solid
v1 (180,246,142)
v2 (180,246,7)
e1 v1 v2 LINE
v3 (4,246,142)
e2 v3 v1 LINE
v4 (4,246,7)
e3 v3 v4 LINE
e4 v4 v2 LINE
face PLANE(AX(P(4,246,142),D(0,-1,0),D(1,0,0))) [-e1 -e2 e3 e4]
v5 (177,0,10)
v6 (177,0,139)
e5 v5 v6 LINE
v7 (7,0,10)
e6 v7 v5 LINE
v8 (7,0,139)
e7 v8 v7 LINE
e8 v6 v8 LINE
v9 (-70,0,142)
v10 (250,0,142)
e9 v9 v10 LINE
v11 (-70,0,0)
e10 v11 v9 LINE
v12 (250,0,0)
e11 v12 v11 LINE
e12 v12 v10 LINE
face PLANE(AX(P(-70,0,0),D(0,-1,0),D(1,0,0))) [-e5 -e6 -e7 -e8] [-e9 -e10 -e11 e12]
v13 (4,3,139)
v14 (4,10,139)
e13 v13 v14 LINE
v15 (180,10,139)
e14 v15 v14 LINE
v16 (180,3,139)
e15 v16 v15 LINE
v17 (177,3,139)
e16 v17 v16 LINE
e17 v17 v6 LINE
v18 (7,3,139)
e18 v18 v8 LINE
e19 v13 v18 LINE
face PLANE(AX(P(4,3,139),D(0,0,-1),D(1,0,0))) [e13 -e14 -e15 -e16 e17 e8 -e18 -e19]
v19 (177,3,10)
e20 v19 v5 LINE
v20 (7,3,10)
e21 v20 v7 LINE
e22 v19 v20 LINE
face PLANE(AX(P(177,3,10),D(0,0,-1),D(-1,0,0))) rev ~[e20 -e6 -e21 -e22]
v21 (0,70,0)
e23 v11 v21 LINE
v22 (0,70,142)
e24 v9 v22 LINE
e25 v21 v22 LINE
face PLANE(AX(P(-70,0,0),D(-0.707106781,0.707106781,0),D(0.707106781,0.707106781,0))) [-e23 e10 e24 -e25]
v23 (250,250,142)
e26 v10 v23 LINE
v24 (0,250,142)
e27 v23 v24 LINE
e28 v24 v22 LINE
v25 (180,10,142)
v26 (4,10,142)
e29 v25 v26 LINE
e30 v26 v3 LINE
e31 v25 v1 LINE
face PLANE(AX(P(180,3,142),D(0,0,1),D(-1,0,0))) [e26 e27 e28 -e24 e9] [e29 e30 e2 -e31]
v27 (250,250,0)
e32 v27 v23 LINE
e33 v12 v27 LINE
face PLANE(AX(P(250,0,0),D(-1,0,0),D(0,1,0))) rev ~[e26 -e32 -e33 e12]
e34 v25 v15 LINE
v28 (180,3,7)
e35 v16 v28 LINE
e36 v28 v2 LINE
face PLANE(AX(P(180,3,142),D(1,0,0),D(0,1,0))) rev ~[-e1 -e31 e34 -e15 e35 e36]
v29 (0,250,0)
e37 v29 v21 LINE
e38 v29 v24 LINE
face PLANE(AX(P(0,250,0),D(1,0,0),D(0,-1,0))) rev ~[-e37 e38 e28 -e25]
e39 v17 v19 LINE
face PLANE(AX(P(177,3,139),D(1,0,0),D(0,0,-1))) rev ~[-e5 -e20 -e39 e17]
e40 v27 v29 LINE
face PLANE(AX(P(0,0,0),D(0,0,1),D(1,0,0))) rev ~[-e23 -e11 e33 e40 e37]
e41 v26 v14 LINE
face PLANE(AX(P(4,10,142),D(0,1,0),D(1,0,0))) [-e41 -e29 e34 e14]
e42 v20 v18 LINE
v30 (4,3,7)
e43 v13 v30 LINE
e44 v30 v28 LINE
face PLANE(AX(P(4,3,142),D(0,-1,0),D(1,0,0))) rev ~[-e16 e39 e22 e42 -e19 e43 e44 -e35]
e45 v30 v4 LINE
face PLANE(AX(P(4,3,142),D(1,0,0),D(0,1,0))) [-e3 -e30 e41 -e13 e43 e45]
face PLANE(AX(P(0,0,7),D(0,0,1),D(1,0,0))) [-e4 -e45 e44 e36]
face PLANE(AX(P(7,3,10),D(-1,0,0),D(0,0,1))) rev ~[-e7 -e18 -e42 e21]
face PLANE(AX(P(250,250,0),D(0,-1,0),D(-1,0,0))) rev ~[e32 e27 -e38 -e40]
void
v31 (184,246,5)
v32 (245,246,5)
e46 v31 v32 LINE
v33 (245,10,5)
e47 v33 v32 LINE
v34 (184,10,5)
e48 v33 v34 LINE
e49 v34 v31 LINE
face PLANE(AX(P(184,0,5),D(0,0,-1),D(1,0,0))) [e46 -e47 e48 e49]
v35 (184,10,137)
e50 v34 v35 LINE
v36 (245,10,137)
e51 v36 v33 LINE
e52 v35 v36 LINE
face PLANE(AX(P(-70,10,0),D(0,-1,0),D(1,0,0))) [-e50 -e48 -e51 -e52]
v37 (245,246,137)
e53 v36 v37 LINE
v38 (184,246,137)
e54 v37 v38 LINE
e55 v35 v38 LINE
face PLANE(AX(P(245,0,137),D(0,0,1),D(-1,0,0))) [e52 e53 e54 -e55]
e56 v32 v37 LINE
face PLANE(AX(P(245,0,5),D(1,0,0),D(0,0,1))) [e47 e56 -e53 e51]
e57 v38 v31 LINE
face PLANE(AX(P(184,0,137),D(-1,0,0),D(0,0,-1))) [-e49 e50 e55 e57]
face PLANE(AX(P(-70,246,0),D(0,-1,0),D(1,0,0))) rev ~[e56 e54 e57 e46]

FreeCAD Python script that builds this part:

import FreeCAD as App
import Part
import Sketcher
from FreeCAD import Vector

doc = App.newDocument("Part")
params = doc.addObject("Spreadsheet::Sheet", "Params")
for row, (alias, value) in enumerate([
    ("sketch1_width", "250 mm"),
    ("pad1_length", "142 mm"),
    ("sketch2_width", "176 mm"),
    ("sketch2_height", "243 mm"),
    ("pocket1_length", "135 mm"),
    ("sketch3_width", "170 mm"),
    ("sketch3_height", "129 mm"),
    ("sketch4_width", "176 mm"),
    ("sketch4_height", "3 mm"),
    ("pad2_length", "7 mm"),
    ("sketch5_width", "61 mm"),
    ("sketch5_height", "132 mm"),
    ("pocket3_length", "246 mm"),
    ("sketch6_width", "61 mm"),
    ("sketch6_height", "132 mm"),
    ("pad3_length", "10 mm"),
], start=1):
    params.set(f"A{row}", alias)
    params.set(f"B{row}", "=" + value)
    params.setAlias(f"B{row}", alias)

body = doc.addObject("PartDesign::Body", "Body")

sketch1 = body.newObject("Sketcher::SketchObject", "Sketch")
sketch1.AttachmentSupport = (doc.getObject("XY_Plane"), [""])
sketch1.MapMode = "FlatFace"
sketch1.addGeometry([
    Part.LineSegment(Vector(0, 250, 0), Vector(0, 70, 0)),
    Part.LineSegment(Vector(0, 70, 0), Vector(-70, 0, 0)),
    Part.LineSegment(Vector(-70, 0, 0), Vector(250, 0, 0)),
    Part.LineSegment(Vector(250, 0, 0), Vector(250, 250, 0)),
    Part.LineSegment(Vector(250, 250, 0), Vector(0, 250, 0)),
], False)
sketch1.addConstraint([
    Sketcher.Constraint("Coincident", 0, 2, 1, 1),
    Sketcher.Constraint("Coincident", 1, 2, 2, 1),
    Sketcher.Constraint("Coincident", 2, 2, 3, 1),
    Sketcher.Constraint("Coincident", 3, 2, 4, 1),
    Sketcher.Constraint("Coincident", 4, 2, 0, 1),
    Sketcher.Constraint("Vertical", 0),
    Sketcher.Constraint("Horizontal", 2),
    Sketcher.Constraint("Vertical", 3),
    Sketcher.Constraint("Horizontal", 4),
    Sketcher.Constraint("PointOnObject", 0, 2, -2),
    Sketcher.Constraint("PointOnObject", 1, 2, -1),
    Sketcher.Constraint("Equal", 4, 3),
    Sketcher.Constraint("DistanceX", 4, 2, 4, 1, 250.0),
    Sketcher.Constraint("DistanceY", -1, 1, 0, 2, 70.0),
    Sketcher.Constraint("DistanceX", 1, 2, -1, 1, 70.0),
])
sketch1.setExpression("Constraints[12]", "Params.sketch1_width")
pad1 = body.newObject("PartDesign::Pad", "Pad")
pad1.Profile = sketch1
pad1.setExpression("Length", "Params.pad1_length")

sketch2 = body.newObject("Sketcher::SketchObject", "Sketch001")
sketch2.AttachmentSupport = (doc.getObject("XY_Plane"), [""])
sketch2.MapMode = "FlatFace"
sketch2.AttachmentOffset = App.Placement(Vector(0, 0, 142), App.Rotation())
sketch2.addGeometry([
    Part.LineSegment(Vector(4, 246, 0), Vector(4, 3, 0)),
    Part.LineSegment(Vector(4, 3, 0), Vector(180, 3, 0)),
    Part.LineSegment(Vector(180, 3, 0), Vector(180, 246, 0)),
    Part.LineSegment(Vector(180, 246, 0), Vector(4, 246, 0)),
], False)
sketch2.addConstraint([
    Sketcher.Constraint("Coincident", 0, 2, 1, 1),
    Sketcher.Constraint("Coincident", 1, 2, 2, 1),
    Sketcher.Constraint("Coincident", 2, 2, 3, 1),
    Sketcher.Constraint("Coincident", 3, 2, 0, 1),
    Sketcher.Constraint("Vertical", 0),
    Sketcher.Constraint("Horizontal", 1),
    Sketcher.Constraint("Vertical", 2),
    Sketcher.Constraint("Horizontal", 3),
    Sketcher.Constraint("DistanceX", 1, 1, 1, 2, 176.0),
    Sketcher.Constraint("DistanceY", 0, 2, 0, 1, 243.0),
    Sketcher.Constraint("DistanceX", -1, 1, 0, 2, 4.0),
    Sketcher.Constraint("DistanceY", -1, 1, 0, 2, 3.0),
])
sketch2.setExpression("Constraints[8]", "Params.sketch2_width")
sketch2.setExpression("Constraints[9]", "Params.sketch2_height")
pocket1 = body.newObject("PartDesign::Pocket", "Pocket")
pocket1.Profile = sketch2
pocket1.setExpression("Length", "Params.pocket1_length")

sketch3 = body.newObject("Sketcher::SketchObject", "Sketch002")
sketch3.AttachmentSupport = (doc.getObject("XZ_Plane"), [""])
sketch3.MapMode = "FlatFace"
sketch3.AttachmentOffset = App.Placement(Vector(0, 0, -3), App.Rotation())
sketch3.addGeometry([
    Part.LineSegment(Vector(7, 10, 0), Vector(7, 139, 0)),
    Part.LineSegment(Vector(7, 139, 0), Vector(177, 139, 0)),
    Part.LineSegment(Vector(177, 139, 0), Vector(177, 10, 0)),
    Part.LineSegment(Vector(177, 10, 0), Vector(7, 10, 0)),
], False)
sketch3.addConstraint([
    Sketcher.Constraint("Coincident", 0, 2, 1, 1),
    Sketcher.Constraint("Coincident", 1, 2, 2, 1),
    Sketcher.Constraint("Coincident", 2, 2, 3, 1),
    Sketcher.Constraint("Coincident", 3, 2, 0, 1),
    Sketcher.Constraint("Vertical", 0),
    Sketcher.Constraint("Horizontal", 1),
    Sketcher.Constraint("Vertical", 2),
    Sketcher.Constraint("Horizontal", 3),
    Sketcher.Constraint("DistanceX", 1, 1, 1, 2, 170.0),
    Sketcher.Constraint("DistanceY", 0, 1, 0, 2, 129.0),
    Sketcher.Constraint("DistanceX", -1, 1, 0, 2, 7.0),
    Sketcher.Constraint("DistanceY", -1, 1, 0, 2, 139.0),
])
sketch3.setExpression("Constraints[8]", "Params.sketch3_width")
sketch3.setExpression("Constraints[9]", "Params.sketch3_height")
pocket2 = body.newObject("PartDesign::Pocket", "Pocket001")
pocket2.Profile = sketch3
pocket2.Type = "ThroughAll"
pocket2.Reversed = True

sketch4 = body.newObject("Sketcher::SketchObject", "Sketch003")
sketch4.AttachmentSupport = (doc.getObject("XZ_Plane"), [""])
sketch4.MapMode = "FlatFace"
sketch4.AttachmentOffset = App.Placement(Vector(0, 0, -3), App.Rotation())
sketch4.addGeometry([
    Part.LineSegment(Vector(4, 142, 0), Vector(180, 142, 0)),
    Part.LineSegment(Vector(180, 142, 0), Vector(180, 139, 0)),
    Part.LineSegment(Vector(180, 139, 0), Vector(4, 139, 0)),
    Part.LineSegment(Vector(4, 139, 0), Vector(4, 142, 0)),
], False)
sketch4.addConstraint([
    Sketcher.Constraint("Coincident", 0, 2, 1, 1),
    Sketcher.Constraint("Coincident", 1, 2, 2, 1),
    Sketcher.Constraint("Coincident", 2, 2, 3, 1),
    Sketcher.Constraint("Coincident", 3, 2, 0, 1),
    Sketcher.Constraint("Horizontal", 0),
    Sketcher.Constraint("Vertical", 1),
    Sketcher.Constraint("Horizontal", 2),
    Sketcher.Constraint("Vertical", 3),
    Sketcher.Constraint("DistanceX", 0, 1, 0, 2, 176.0),
    Sketcher.Constraint("DistanceY", 1, 2, 1, 1, 3.0),
    Sketcher.Constraint("DistanceX", -1, 1, 0, 2, 180.0),
    Sketcher.Constraint("DistanceY", -1, 1, 0, 2, 142.0),
])
sketch4.setExpression("Constraints[8]", "Params.sketch4_width")
sketch4.setExpression("Constraints[9]", "Params.sketch4_height")
pad2 = body.newObject("PartDesign::Pad", "Pad001")
pad2.Profile = sketch4
pad2.setExpression("Length", "Params.pad2_length")
pad2.Reversed = True

sketch5 = body.newObject("Sketcher::SketchObject", "Sketch004")
sketch5.AttachmentSupport = (doc.getObject("XZ_Plane"), [""])
sketch5.MapMode = "FlatFace"
sketch5.addGeometry([
    Part.LineSegment(Vector(245, 5, 0), Vector(245, 137, 0)),
    Part.LineSegment(Vector(245, 137, 0), Vector(184, 137, 0)),
    Part.LineSegment(Vector(184, 137, 0), Vector(184, 5, 0)),
    Part.LineSegment(Vector(184, 5, 0), Vector(245, 5, 0)),
], False)
sketch5.addConstraint([
    Sketcher.Constraint("Coincident", 0, 2, 1, 1),
    Sketcher.Constraint("Coincident", 1, 2, 2, 1),
    Sketcher.Constraint("Coincident", 2, 2, 3, 1),
    Sketcher.Constraint("Coincident", 3, 2, 0, 1),
    Sketcher.Constraint("Vertical", 0),
    Sketcher.Constraint("Horizontal", 1),
    Sketcher.Constraint("Vertical", 2),
    Sketcher.Constraint("Horizontal", 3),
    Sketcher.Constraint("DistanceY", -1, 1, 2, 2, 5.0),
    Sketcher.Constraint("DistanceX", 1, 2, 1, 1, 61.0),
    Sketcher.Constraint("DistanceY", 0, 1, 0, 2, 132.0),
    Sketcher.Constraint("DistanceX", -1, 1, 0, 2, 245.0),
])
sketch5.setExpression("Constraints[9]", "Params.sketch5_width")
sketch5.setExpression("Constraints[10]", "Params.sketch5_height")
pocket3 = body.newObject("PartDesign::Pocket", "Pocket002")
pocket3.Profile = sketch5
pocket3.setExpression("Length", "Params.pocket3_length")

sketch6 = body.newObject("Sketcher::SketchObject", "Sketch005")
sketch6.AttachmentSupport = (doc.getObject("XZ_Plane"), [""])
sketch6.MapMode = "FlatFace"
sketch6.addGeometry([
    Part.LineSegment(Vector(184, 137, 0), Vector(184, 5, 0)),
    Part.LineSegment(Vector(184, 5, 0), Vector(245, 5, 0)),
    Part.LineSegment(Vector(245, 5, 0), Vector(245, 137, 0)),
    Part.LineSegment(Vector(245, 137, 0), Vector(184, 137, 0)),
], False)
sketch6.addConstraint([
    Sketcher.Constraint("Coincident", 0, 2, 1, 1),
    Sketcher.Constraint("Coincident", 1, 2, 2, 1),
    Sketcher.Constraint("Coincident", 2, 2, 3, 1),
    Sketcher.Constraint("Coincident", 3, 2, 0, 1),
    Sketcher.Constraint("Vertical", 0),
    Sketcher.Constraint("Horizontal", 1),
    Sketcher.Constraint("Vertical", 2),
    Sketcher.Constraint("Horizontal", 3),
    Sketcher.Constraint("DistanceX", 1, 1, 1, 2, 61.0),
    Sketcher.Constraint("DistanceY", 0, 2, 0, 1, 132.0),
    Sketcher.Constraint("DistanceX", -1, 1, 0, 2, 184.0),
    Sketcher.Constraint("DistanceY", -1, 1, 0, 2, 5.0),
])
sketch6.setExpression("Constraints[8]", "Params.sketch6_width")
sketch6.setExpression("Constraints[9]", "Params.sketch6_height")
pad3 = body.newObject("PartDesign::Pad", "Pad002")
pad3.Profile = sketch6
pad3.setExpression("Length", "Params.pad3_length")
pad3.Reversed = True

doc.recompute()
